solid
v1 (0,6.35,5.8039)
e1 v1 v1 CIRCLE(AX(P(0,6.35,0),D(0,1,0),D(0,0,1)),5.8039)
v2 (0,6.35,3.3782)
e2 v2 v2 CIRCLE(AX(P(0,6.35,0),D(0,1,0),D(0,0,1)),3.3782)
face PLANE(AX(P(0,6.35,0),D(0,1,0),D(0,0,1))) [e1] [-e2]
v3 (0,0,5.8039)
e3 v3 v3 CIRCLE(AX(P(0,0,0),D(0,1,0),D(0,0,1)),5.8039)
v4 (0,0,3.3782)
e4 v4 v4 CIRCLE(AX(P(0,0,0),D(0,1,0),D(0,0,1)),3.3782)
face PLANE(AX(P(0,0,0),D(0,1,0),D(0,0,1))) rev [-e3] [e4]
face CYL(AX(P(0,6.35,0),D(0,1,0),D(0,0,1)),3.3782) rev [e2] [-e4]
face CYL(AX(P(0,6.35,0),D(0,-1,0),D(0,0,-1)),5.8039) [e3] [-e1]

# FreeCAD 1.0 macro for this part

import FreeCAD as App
import Part
import Sketcher
from FreeCAD import Vector
Q = App.Units.Quantity

doc = App.newDocument("Part")
body = doc.addObject("PartDesign::Body", "Body")

# Sketch on XZ plane
sketch1 = body.newObject("Sketcher::SketchObject", "Sketch")
sketch1.AttachmentSupport = (doc.getObject("XZ_Plane"), [""])
sketch1.MapMode = "FlatFace"
sketch1.addGeometry(Part.Circle(Vector(0, 0, 0), Vector(0, 0, 1), 6), False)
sketch1.addConstraint([
    Sketcher.Constraint("Coincident", 0, 3, -1, 1),
    Sketcher.Constraint("Diameter", 0, Q("0.457 in")),
])
pad1 = body.newObject("PartDesign::Pad", "Pad")
pad1.Profile = sketch1
pad1.Length = Q("0.25 in")
pad1.Reversed = True

# Sketch on XZ plane
sketch2 = body.newObject("Sketcher::SketchObject", "Sketch001")
sketch2.AttachmentSupport = (doc.getObject("XZ_Plane"), [""])
sketch2.MapMode = "FlatFace"
sketch2.AttachmentOffset = App.Placement(Vector(0, 0, -0.25 * 25.4), App.Rotation())
sketch2.addGeometry(Part.Circle(Vector(0, 0, 0), Vector(0, 0, 1), 3.4), False)
sketch2.addConstraint([
    Sketcher.Constraint("Coincident", 0, 3, -1, 1),
    Sketcher.Constraint("Diameter", 0, Q("0.266 in")),
])
doc.recompute()
hole = body.newObject("PartDesign::Hole", "Hole")
hole.Profile = sketch2
hole.ThreadType = "None"
hole.Diameter = Q("0.266 in")
hole.DepthType = "ThroughAll"
hole.Reversed = True

doc.recompute()
